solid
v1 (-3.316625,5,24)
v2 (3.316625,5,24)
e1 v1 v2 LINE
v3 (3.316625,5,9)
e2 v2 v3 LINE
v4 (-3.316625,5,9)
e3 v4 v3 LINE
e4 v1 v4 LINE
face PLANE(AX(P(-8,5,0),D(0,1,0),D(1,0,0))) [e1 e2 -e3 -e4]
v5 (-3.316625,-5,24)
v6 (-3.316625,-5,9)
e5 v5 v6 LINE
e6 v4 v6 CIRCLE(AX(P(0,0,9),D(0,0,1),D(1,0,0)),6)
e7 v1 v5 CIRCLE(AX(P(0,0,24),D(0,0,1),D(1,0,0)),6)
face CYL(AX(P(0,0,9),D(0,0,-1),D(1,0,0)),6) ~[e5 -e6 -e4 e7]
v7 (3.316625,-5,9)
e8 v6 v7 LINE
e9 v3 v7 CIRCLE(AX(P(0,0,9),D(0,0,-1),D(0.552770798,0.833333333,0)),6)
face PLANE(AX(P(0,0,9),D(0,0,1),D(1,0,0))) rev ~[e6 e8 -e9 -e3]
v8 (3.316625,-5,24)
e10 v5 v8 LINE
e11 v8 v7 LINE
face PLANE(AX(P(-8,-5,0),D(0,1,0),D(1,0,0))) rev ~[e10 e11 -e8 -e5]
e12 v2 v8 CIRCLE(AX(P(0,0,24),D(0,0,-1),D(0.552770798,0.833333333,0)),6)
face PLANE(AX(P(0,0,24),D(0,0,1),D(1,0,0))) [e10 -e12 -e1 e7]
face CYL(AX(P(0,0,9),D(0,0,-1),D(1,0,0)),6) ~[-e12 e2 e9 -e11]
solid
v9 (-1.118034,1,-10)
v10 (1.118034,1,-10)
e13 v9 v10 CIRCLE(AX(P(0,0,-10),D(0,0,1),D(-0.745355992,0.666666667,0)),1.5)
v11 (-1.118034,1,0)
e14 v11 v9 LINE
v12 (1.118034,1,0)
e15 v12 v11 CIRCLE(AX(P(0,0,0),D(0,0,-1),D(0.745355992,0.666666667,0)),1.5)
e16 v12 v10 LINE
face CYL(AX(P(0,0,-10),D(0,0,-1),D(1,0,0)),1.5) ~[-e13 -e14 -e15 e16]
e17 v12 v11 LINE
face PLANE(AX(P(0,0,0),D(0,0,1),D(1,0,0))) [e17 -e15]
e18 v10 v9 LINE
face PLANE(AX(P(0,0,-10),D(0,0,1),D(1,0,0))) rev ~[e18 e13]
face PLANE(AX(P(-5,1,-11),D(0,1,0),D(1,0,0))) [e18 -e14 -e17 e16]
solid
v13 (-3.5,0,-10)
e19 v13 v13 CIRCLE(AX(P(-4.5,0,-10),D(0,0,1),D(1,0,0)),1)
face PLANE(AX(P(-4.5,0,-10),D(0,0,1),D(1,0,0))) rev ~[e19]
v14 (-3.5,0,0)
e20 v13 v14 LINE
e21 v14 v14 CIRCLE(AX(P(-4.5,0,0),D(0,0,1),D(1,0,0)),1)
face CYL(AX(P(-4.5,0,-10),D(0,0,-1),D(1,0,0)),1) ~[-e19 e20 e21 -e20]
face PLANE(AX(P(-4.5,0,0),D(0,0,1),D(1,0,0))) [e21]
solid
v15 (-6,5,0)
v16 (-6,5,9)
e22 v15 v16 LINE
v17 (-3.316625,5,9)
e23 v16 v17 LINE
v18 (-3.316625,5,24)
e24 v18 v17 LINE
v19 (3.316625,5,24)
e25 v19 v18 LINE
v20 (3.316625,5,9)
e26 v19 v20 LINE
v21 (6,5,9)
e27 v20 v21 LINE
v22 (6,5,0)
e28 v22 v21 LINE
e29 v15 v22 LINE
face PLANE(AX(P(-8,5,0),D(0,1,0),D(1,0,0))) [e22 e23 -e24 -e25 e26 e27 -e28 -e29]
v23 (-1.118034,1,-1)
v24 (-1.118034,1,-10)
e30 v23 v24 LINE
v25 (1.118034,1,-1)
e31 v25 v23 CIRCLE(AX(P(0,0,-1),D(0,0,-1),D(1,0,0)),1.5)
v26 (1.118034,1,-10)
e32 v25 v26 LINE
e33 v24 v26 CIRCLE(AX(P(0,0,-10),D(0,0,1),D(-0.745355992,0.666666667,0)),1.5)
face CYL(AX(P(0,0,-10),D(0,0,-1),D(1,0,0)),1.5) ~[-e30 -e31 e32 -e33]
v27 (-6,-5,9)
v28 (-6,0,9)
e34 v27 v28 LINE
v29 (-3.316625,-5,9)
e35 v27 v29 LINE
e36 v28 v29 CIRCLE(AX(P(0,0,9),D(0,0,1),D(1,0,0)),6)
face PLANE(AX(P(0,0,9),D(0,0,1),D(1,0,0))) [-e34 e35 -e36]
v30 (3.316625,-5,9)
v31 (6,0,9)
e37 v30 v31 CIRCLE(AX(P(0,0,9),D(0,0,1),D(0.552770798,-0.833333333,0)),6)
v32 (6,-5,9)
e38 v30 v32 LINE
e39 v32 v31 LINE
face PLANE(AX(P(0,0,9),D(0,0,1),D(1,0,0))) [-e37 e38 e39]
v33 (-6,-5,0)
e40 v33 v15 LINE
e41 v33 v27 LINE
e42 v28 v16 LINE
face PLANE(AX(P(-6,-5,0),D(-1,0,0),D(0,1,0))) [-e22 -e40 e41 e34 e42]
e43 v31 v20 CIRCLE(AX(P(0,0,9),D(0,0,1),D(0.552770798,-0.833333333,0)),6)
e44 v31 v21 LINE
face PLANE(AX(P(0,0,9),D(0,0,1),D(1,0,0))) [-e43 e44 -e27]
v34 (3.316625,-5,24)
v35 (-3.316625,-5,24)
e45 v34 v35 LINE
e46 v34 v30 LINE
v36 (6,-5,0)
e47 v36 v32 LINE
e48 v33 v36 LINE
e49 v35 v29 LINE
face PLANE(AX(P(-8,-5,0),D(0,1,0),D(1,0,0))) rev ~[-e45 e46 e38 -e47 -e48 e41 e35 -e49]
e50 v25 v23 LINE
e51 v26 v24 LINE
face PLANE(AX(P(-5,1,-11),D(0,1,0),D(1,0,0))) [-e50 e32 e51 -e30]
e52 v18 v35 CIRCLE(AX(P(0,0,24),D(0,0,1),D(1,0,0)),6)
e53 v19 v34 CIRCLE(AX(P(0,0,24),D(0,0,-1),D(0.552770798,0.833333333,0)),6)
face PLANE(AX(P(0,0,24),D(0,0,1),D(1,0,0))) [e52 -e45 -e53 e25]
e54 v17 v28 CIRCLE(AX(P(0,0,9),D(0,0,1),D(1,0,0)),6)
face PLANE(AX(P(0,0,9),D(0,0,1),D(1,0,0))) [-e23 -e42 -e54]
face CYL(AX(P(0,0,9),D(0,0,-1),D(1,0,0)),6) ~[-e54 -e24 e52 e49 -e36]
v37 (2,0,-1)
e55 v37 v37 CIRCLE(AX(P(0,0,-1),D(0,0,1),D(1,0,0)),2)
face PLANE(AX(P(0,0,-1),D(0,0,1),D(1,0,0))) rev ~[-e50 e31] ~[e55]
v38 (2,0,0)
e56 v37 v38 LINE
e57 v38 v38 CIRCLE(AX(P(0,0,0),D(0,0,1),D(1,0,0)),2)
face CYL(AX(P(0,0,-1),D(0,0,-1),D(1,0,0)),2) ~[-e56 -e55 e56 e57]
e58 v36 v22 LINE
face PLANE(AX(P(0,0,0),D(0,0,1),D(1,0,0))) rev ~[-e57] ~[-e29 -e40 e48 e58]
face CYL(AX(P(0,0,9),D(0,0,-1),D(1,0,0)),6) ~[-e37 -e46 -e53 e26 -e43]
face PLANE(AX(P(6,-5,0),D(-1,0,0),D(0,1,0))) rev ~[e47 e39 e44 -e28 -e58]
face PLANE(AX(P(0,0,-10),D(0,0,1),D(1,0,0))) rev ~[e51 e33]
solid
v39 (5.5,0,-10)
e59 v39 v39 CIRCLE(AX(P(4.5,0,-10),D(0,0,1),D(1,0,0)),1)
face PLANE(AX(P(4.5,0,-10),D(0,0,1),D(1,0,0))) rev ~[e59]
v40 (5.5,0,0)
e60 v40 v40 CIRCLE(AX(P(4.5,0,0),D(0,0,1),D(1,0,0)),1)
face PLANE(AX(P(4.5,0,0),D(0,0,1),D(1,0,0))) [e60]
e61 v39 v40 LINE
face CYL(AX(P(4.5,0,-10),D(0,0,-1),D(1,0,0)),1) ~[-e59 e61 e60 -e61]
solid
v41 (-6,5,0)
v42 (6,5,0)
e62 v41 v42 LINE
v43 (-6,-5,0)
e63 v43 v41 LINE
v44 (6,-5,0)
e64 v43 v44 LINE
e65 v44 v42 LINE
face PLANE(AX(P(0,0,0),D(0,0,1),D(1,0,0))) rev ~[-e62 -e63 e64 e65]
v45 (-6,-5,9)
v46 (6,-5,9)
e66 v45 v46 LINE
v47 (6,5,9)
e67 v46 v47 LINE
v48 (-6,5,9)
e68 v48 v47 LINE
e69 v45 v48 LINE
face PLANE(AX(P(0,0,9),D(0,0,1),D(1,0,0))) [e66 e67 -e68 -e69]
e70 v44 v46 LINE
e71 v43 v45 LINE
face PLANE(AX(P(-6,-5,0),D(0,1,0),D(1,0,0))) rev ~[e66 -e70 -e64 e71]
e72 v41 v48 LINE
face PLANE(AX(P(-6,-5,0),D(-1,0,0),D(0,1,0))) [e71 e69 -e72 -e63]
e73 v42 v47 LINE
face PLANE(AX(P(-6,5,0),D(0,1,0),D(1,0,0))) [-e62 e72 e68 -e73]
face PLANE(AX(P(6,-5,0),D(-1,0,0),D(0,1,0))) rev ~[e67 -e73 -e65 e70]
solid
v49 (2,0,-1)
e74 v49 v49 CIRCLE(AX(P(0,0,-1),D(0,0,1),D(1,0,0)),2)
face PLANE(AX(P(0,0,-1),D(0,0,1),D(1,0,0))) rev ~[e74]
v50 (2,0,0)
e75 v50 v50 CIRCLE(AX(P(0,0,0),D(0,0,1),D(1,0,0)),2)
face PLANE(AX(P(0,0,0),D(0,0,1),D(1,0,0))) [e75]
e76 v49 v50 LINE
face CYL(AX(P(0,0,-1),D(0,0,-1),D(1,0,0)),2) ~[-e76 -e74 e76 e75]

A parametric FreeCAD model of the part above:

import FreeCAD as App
import Part
import Sketcher

V = App.Vector

doc = App.newDocument("Part")
params = doc.addObject("Spreadsheet::Sheet", "Params")
for row, (alias, value) in enumerate([
    ("sketch1_diameter", "2 mm"),
    ("pad1_length", "10 mm"),
    ("sketch2_diameter", "2 mm"),
    ("pad2_length", "10 mm"),
    ("sketch3_width", "12 mm"),
    ("sketch3_height", "10 mm"),
    ("pad3_length", "9 mm"),
    ("sketch4_diameter", "4 mm"),
    ("pad4_length", "1 mm"),
    ("sketch5_width", "10 mm"),
    ("pad5_length", "12 mm"),
    ("sketch6_diameter", "3 mm"),
    ("pad6_length", "10 mm"),
    ("sketch7_diameter", "12 mm"),
    ("pad7_length", "15 mm"),
    ("sketch8_width", "16 mm"),
    ("sketch8_height", "10 mm"),
    ("pad8_length", "27 mm"),
    ("sketch9_diameter", "4 mm"),
    ("pad9_length", "1 mm"),
    ("sketch10_width", "16 mm"),
    ("sketch10_height", "10 mm"),
    ("pad10_length", "27 mm"),
    ("sketch11_diameter", "12 mm"),
    ("pad11_length", "15 mm"),
    ("sketch12_width", "10 mm"),
    ("pad12_length", "12 mm"),
    ("sketch13_diameter", "3 mm"),
    ("pad13_length", "10 mm"),
    ("sketch14_width", "12 mm"),
    ("sketch14_height", "10 mm"),
    ("pad14_length", "9 mm"),
], start=1):
    params.set(f"A{row}", alias)
    params.set(f"B{row}", "=" + value)
    params.setAlias(f"B{row}", alias)

body = doc.addObject("PartDesign::Body", "Body")

# Sketch on XY plane
sketch1 = body.newObject("Sketcher::SketchObject", "Sketch")
sketch1.AttachmentSupport = (doc.getObject("XY_Plane"), [""])
sketch1.MapMode = "FlatFace"
sketch1.AttachmentOffset = App.Placement(V(0, 0, -10), App.Rotation())
sketch1.addGeometry(Part.Circle(V(4.5, 0, 0), V(0, 0, 1), 1), False)
sketch1.addConstraint([
    Sketcher.Constraint("PointOnObject", 0, 3, -1),
    Sketcher.Constraint("Diameter", 0, 2.0),
    Sketcher.Constraint("DistanceX", -1, 1, 0, 3, 4.5),
])
sketch1.setExpression("Constraints[1]", "Params.sketch1_diameter")
pad1 = body.newObject("PartDesign::Pad", "Pad")
pad1.Profile = sketch1
pad1.setExpression("Length", "Params.pad1_length")
body2 = doc.addObject("PartDesign::Body", "Body001")

# Sketch on XY plane
sketch2 = body2.newObject("Sketcher::SketchObject", "Sketch001")
sketch2.AttachmentSupport = (doc.getObject("XY_Plane001"), [""])
sketch2.MapMode = "FlatFace"
sketch2.AttachmentOffset = App.Placement(V(0, 0, -10), App.Rotation())
sketch2.addGeometry(Part.Circle(V(-4.5, 0, 0), V(0, 0, 1), 1), False)
sketch2.addConstraint([
    Sketcher.Constraint("PointOnObject", 0, 3, -1),
    Sketcher.Constraint("Diameter", 0, 2.0),
    Sketcher.Constraint("DistanceX", 0, 3, -1, 1, 4.5),
])
sketch2.setExpression("Constraints[1]", "Params.sketch2_diameter")
pad2 = body2.newObject("PartDesign::Pad", "Pad001")
pad2.Profile = sketch2
pad2.setExpression("Length", "Params.pad2_length")
body3 = doc.addObject("PartDesign::Body", "Body002")

# Sketch on XY plane
sketch3 = body3.newObject("Sketcher::SketchObject", "Sketch002")
sketch3.AttachmentSupport = (doc.getObject("XY_Plane002"), [""])
sketch3.MapMode = "FlatFace"
sketch3.addGeometry([
    Part.LineSegment(V(-6, 5, 0), V(-6, -5, 0)),
    Part.LineSegment(V(-6, -5, 0), V(6, -5, 0)),
    Part.LineSegment(V(6, -5, 0), V(6, 5, 0)),
    Part.LineSegment(V(6, 5, 0), V(-6, 5, 0)),
], False)
sketch3.addConstraint([
    Sketcher.Constraint("Coincident", 0, 2, 1, 1),
    Sketcher.Constraint("Coincident", 1, 2, 2, 1),
    Sketcher.Constraint("Coincident", 2, 2, 3, 1),
    Sketcher.Constraint("Coincident", 3, 2, 0, 1),
    Sketcher.Constraint("Vertical", 0),
    Sketcher.Constraint("Horizontal", 1),
    Sketcher.Constraint("Vertical", 2),
    Sketcher.Constraint("Horizontal", 3),
    Sketcher.Constraint("Symmetric", 0, 2, 2, 2, -1, 1),
    Sketcher.Constraint("DistanceX", 1, 1, 1, 2, 12.0),
    Sketcher.Constraint("DistanceY", 0, 2, 0, 1, 10.0),
])
sketch3.setExpression("Constraints[9]", "Params.sketch3_width")
sketch3.setExpression("Constraints[10]", "Params.sketch3_height")
pad3 = body3.newObject("PartDesign::Pad", "Pad002")
pad3.Profile = sketch3
pad3.setExpression("Length", "Params.pad3_length")
body4 = doc.addObject("PartDesign::Body", "Body003")

# Sketch on XY plane
sketch4 = body4.newObject("Sketcher::SketchObject", "Sketch003")
sketch4.AttachmentSupport = (doc.getObject("XY_Plane003"), [""])
sketch4.MapMode = "FlatFace"
sketch4.AttachmentOffset = App.Placement(V(0, 0, -1), App.Rotation())
sketch4.addGeometry(Part.Circle(V(0, 0, 0), V(0, 0, 1), 2), False)
sketch4.addConstraint([
    Sketcher.Constraint("Coincident", 0, 3, -1, 1),
    Sketcher.Constraint("Diameter", 0, 4.0),
])
sketch4.setExpression("Constraints[1]", "Params.sketch4_diameter")
pad4 = body4.newObject("PartDesign::Pad", "Pad003")
pad4.Profile = sketch4
pad4.setExpression("Length", "Params.pad4_length")
body5 = doc.addObject("PartDesign::Body", "Body004")

# Sketch on XY plane
sketch5 = body5.newObject("Sketcher::SketchObject", "Sketch004")
sketch5.AttachmentSupport = (doc.getObject("XY_Plane004"), [""])
sketch5.MapMode = "FlatFace"
sketch5.AttachmentOffset = App.Placement(V(0, 0, -11), App.Rotation())
sketch5.addGeometry([
    Part.LineSegment(V(-5, 11, 0), V(-5, 1, 0)),
    Part.LineSegment(V(-5, 1, 0), V(5, 1, 0)),
    Part.LineSegment(V(5, 1, 0), V(5, 11, 0)),
    Part.LineSegment(V(5, 11, 0), V(-5, 11, 0)),
], False)
sketch5.addConstraint([
    Sketcher.Constraint("Coincident", 0, 2, 1, 1),
    Sketcher.Constraint("Coincident", 1, 2, 2, 1),
    Sketcher.Constraint("Coincident", 2, 2, 3, 1),
    Sketcher.Constraint("Coincident", 3, 2, 0, 1),
    Sketcher.Constraint("Vertical", 0),
    Sketcher.Constraint("Horizontal", 1),
    Sketcher.Constraint("Vertical", 2),
    Sketcher.Constraint("Horizontal", 3),
    Sketcher.Constraint("Equal", 3, 0),
    Sketcher.Constraint("DistanceX", 1, 1, 1, 2, 10.0),
    Sketcher.Constraint("DistanceX", 0, 2, -1, 1, 5.0),
    Sketcher.Constraint("DistanceY", -1, 1, 0, 2, 1.0),
])
sketch5.setExpression("Constraints[9]", "Params.sketch5_width")
pad5 = body5.newObject("PartDesign::Pad", "Pad004")
pad5.Profile = sketch5
pad5.setExpression("Length", "Params.pad5_length")
body6 = doc.addObject("PartDesign::Body", "Body005")

# Sketch on XY plane
sketch6 = body6.newObject("Sketcher::SketchObject", "Sketch005")
sketch6.AttachmentSupport = (doc.getObject("XY_Plane005"), [""])
sketch6.MapMode = "FlatFace"
sketch6.AttachmentOffset = App.Placement(V(0, 0, -10), App.Rotation())
sketch6.addGeometry(Part.Circle(V(0, 0, 0), V(0, 0, 1), 1.5), False)
sketch6.addConstraint([
    Sketcher.Constraint("Coincident", 0, 3, -1, 1),
    Sketcher.Constraint("Diameter", 0, 3.0),
])
sketch6.setExpression("Constraints[1]", "Params.sketch6_diameter")
pad6 = body6.newObject("PartDesign::Pad", "Pad005")
pad6.Profile = sketch6
pad6.setExpression("Length", "Params.pad6_length")
doc.recompute()

boolean = body6.newObject("PartDesign::Boolean", "Boolean")
boolean.Type = "Cut"
boolean.addObjects([body5])
body7 = doc.addObject("PartDesign::Body", "Body006")

# Sketch on XY plane
sketch7 = body7.newObject("Sketcher::SketchObject", "Sketch006")
sketch7.AttachmentSupport = (doc.getObject("XY_Plane006"), [""])
sketch7.MapMode = "FlatFace"
sketch7.AttachmentOffset = App.Placement(V(0, 0, 9), App.Rotation())
sketch7.addGeometry(Part.Circle(V(0, 0, 0), V(0, 0, 1), 6), False)
sketch7.addConstraint([
    Sketcher.Constraint("Coincident", 0, 3, -1, 1),
    Sketcher.Constraint("Diameter", 0, 12.0),
])
sketch7.setExpression("Constraints[1]", "Params.sketch7_diameter")
pad7 = body7.newObject("PartDesign::Pad", "Pad006")
pad7.Profile = sketch7
pad7.setExpression("Length", "Params.pad7_length")
body8 = doc.addObject("PartDesign::Body", "Body007")

# Sketch on XY plane
sketch8 = body8.newObject("Sketcher::SketchObject", "Sketch007")
sketch8.AttachmentSupport = (doc.getObject("XY_Plane007"), [""])
sketch8.MapMode = "FlatFace"
sketch8.addGeometry([
    Part.LineSegment(V(-8, 5, 0), V(-8, -5, 0)),
    Part.LineSegment(V(-8, -5, 0), V(8, -5, 0)),
    Part.LineSegment(V(8, -5, 0), V(8, 5, 0)),
    Part.LineSegment(V(8, 5, 0), V(-8, 5, 0)),
], False)
sketch8.addConstraint([
    Sketcher.Constraint("Coincident", 0, 2, 1, 1),
    Sketcher.Constraint("Coincident", 1, 2, 2, 1),
    Sketcher.Constraint("Coincident", 2, 2, 3, 1),
    Sketcher.Constraint("Coincident", 3, 2, 0, 1),
    Sketcher.Constraint("Vertical", 0),
    Sketcher.Constraint("Horizontal", 1),
    Sketcher.Constraint("Vertical", 2),
    Sketcher.Constraint("Horizontal", 3),
    Sketcher.Constraint("Symmetric", 0, 2, 2, 2, -1, 1),
    Sketcher.Constraint("DistanceX", 1, 1, 1, 2, 16.0),
    Sketcher.Constraint("DistanceY", 0, 2, 0, 1, 10.0),
])
sketch8.setExpression("Constraints[9]", "Params.sketch8_width")
sketch8.setExpression("Constraints[10]", "Params.sketch8_height")
pad8 = body8.newObject("PartDesign::Pad", "Pad007")
pad8.Profile = sketch8
pad8.setExpression("Length", "Params.pad8_length")
doc.recompute()

boolean2 = body8.newObject("PartDesign::Boolean", "Boolean001")
boolean2.Type = "Common"
boolean2.addObjects([body7])
body9 = doc.addObject("PartDesign::Body", "Body008")

# Sketch on XY plane
sketch9 = body9.newObject("Sketcher::SketchObject", "Sketch008")
sketch9.AttachmentSupport = (doc.getObject("XY_Plane008"), [""])
sketch9.MapMode = "FlatFace"
sketch9.AttachmentOffset = App.Placement(V(0, 0, -1), App.Rotation())
sketch9.addGeometry(Part.Circle(V(0, 0, 0), V(0, 0, 1), 2), False)
sketch9.addConstraint([
    Sketcher.Constraint("Coincident", 0, 3, -1, 1),
    Sketcher.Constraint("Diameter", 0, 4.0),
])
sketch9.setExpression("Constraints[1]", "Params.sketch9_diameter")
pad9 = body9.newObject("PartDesign::Pad", "Pad008")
pad9.Profile = sketch9
pad9.setExpression("Length", "Params.pad9_length")
body10 = doc.addObject("PartDesign::Body", "Body009")

# Sketch on XY plane
sketch10 = body10.newObject("Sketcher::SketchObject", "Sketch009")
sketch10.AttachmentSupport = (doc.getObject("XY_Plane009"), [""])
sketch10.MapMode = "FlatFace"
sketch10.addGeometry([
    Part.LineSegment(V(-8, 5, 0), V(-8, -5, 0)),
    Part.LineSegment(V(-8, -5, 0), V(8, -5, 0)),
    Part.LineSegment(V(8, -5, 0), V(8, 5, 0)),
    Part.LineSegment(V(8, 5, 0), V(-8, 5, 0)),
], False)
sketch10.addConstraint([
    Sketcher.Constraint("Coincident", 0, 2, 1, 1),
    Sketcher.Constraint("Coincident", 1, 2, 2, 1),
    Sketcher.Constraint("Coincident", 2, 2, 3, 1),
    Sketcher.Constraint("Coincident", 3, 2, 0, 1),
    Sketcher.Constraint("Vertical", 0),
    Sketcher.Constraint("Horizontal", 1),
    Sketcher.Constraint("Vertical", 2),
    Sketcher.Constraint("Horizontal", 3),
    Sketcher.Constraint("Symmetric", 0, 2, 2, 2, -1, 1),
    Sketcher.Constraint("DistanceX", 1, 1, 1, 2, 16.0),
    Sketcher.Constraint("DistanceY", 0, 2, 0, 1, 10.0),
])
sketch10.setExpression("Constraints[9]", "Params.sketch10_width")
sketch10.setExpression("Constraints[10]", "Params.sketch10_height")
pad10 = body10.newObject("PartDesign::Pad", "Pad009")
pad10.Profile = sketch10
pad10.setExpression("Length", "Params.pad10_length")
body11 = doc.addObject("PartDesign::Body", "Body010")

# Sketch on XY plane
sketch11 = body11.newObject("Sketcher::SketchObject", "Sketch010")
sketch11.AttachmentSupport = (doc.getObject("XY_Plane010"), [""])
sketch11.MapMode = "FlatFace"
sketch11.AttachmentOffset = App.Placement(V(0, 0, 9), App.Rotation())
sketch11.addGeometry(Part.Circle(V(0, 0, 0), V(0, 0, 1), 6), False)
sketch11.addConstraint([
    Sketcher.Constraint("Coincident", 0, 3, -1, 1),
    Sketcher.Constraint("Diameter", 0, 12.0),
])
sketch11.setExpression("Constraints[1]", "Params.sketch11_diameter")
pad11 = body11.newObject("PartDesign::Pad", "Pad010")
pad11.Profile = sketch11
pad11.setExpression("Length", "Params.pad11_length")
doc.recompute()

boolean3 = body11.newObject("PartDesign::Boolean", "Boolean002")
boolean3.Type = "Common"
boolean3.addObjects([body10])
body12 = doc.addObject("PartDesign::Body", "Body011")

# Sketch on XY plane
sketch12 = body12.newObject("Sketcher::SketchObject", "Sketch011")
sketch12.AttachmentSupport = (doc.getObject("XY_Plane011"), [""])
sketch12.MapMode = "FlatFace"
sketch12.AttachmentOffset = App.Placement(V(0, 0, -11), App.Rotation())
sketch12.addGeometry([
    Part.LineSegment(V(-5, 11, 0), V(-5, 1, 0)),
    Part.LineSegment(V(-5, 1, 0), V(5, 1, 0)),
    Part.LineSegment(V(5, 1, 0), V(5, 11, 0)),
    Part.LineSegment(V(5, 11, 0), V(-5, 11, 0)),
], False)
sketch12.addConstraint([
    Sketcher.Constraint("Coincident", 0, 2, 1, 1),
    Sketcher.Constraint("Coincident", 1, 2, 2, 1),
    Sketcher.Constraint("Coincident", 2, 2, 3, 1),
    Sketcher.Constraint("Coincident", 3, 2, 0, 1),
    Sketcher.Constraint("Vertical", 0),
    Sketcher.Constraint("Horizontal", 1),
    Sketcher.Constraint("Vertical", 2),
    Sketcher.Constraint("Horizontal", 3),
    Sketcher.Constraint("Equal", 3, 0),
    Sketcher.Constraint("DistanceX", 1, 1, 1, 2, 10.0),
    Sketcher.Constraint("DistanceX", 0, 2, -1, 1, 5.0),
    Sketcher.Constraint("DistanceY", -1, 1, 0, 2, 1.0),
])
sketch12.setExpression("Constraints[9]", "Params.sketch12_width")
pad12 = body12.newObject("PartDesign::Pad", "Pad011")
pad12.Profile = sketch12
pad12.setExpression("Length", "Params.pad12_length")
body13 = doc.addObject("PartDesign::Body", "Body012")

# Sketch on XY plane
sketch13 = body13.newObject("Sketcher::SketchObject", "Sketch012")
sketch13.AttachmentSupport = (doc.getObject("XY_Plane012"), [""])
sketch13.MapMode = "FlatFace"
sketch13.AttachmentOffset = App.Placement(V(0, 0, -10), App.Rotation())
sketch13.addGeometry(Part.Circle(V(0, 0, 0), V(0, 0, 1), 1.5), False)
sketch13.addConstraint([
    Sketcher.Constraint("Coincident", 0, 3, -1, 1),
    Sketcher.Constraint("Diameter", 0, 3.0),
])
sketch13.setExpression("Constraints[1]", "Params.sketch13_diameter")
pad13 = body13.newObject("PartDesign::Pad", "Pad012")
pad13.Profile = sketch13
pad13.setExpression("Length", "Params.pad13_length")
doc.recompute()

boolean4 = body13.newObject("PartDesign::Boolean", "Boolean003")
boolean4.Type = "Cut"
boolean4.addObjects([body12])
body14 = doc.addObject("PartDesign::Body", "Body013")

# Sketch on XY plane
sketch14 = body14.newObject("Sketcher::SketchObject", "Sketch013")
sketch14.AttachmentSupport = (doc.getObject("XY_Plane013"), [""])
sketch14.MapMode = "FlatFace"
sketch14.addGeometry([
    Part.LineSegment(V(-6, 5, 0), V(-6, -5, 0)),
    Part.LineSegment(V(-6, -5, 0), V(6, -5, 0)),
    Part.LineSegment(V(6, -5, 0), V(6, 5, 0)),
    Part.LineSegment(V(6, 5, 0), V(-6, 5, 0)),
], False)
sketch14.addConstraint([
    Sketcher.Constraint("Coincident", 0, 2, 1, 1),
    Sketcher.Constraint("Coincident", 1, 2, 2, 1),
    Sketcher.Constraint("Coincident", 2, 2, 3, 1),
    Sketcher.Constraint("Coincident", 3, 2, 0, 1),
    Sketcher.Constraint("Vertical", 0),
    Sketcher.Constraint("Horizontal", 1),
    Sketcher.Constraint("Vertical", 2),
    Sketcher.Constraint("Horizontal", 3),
    Sketcher.Constraint("Symmetric", 0, 2, 2, 2, -1, 1),
    Sketcher.Constraint("DistanceX", 1, 1, 1, 2, 12.0),
    Sketcher.Constraint("DistanceY", 0, 2, 0, 1, 10.0),
])
sketch14.setExpression("Constraints[9]", "Params.sketch14_width")
sketch14.setExpression("Constraints[10]", "Params.sketch14_height")
pad14 = body14.newObject("PartDesign::Pad", "Pad013")
pad14.Profile = sketch14
pad14.setExpression("Length", "Params.pad14_length")
doc.recompute()

boolean5 = body14.newObject("PartDesign::Boolean", "Boolean004")
boolean5.Type = "Fuse"
boolean5.addObjects([body9])
doc.recompute()

boolean6 = body14.newObject("PartDesign::Boolean", "Boolean005")
boolean6.Type = "Fuse"
boolean6.addObjects([body11])
doc.recompute()

boolean7 = body14.newObject("PartDesign::Boolean", "Boolean006")
boolean7.Type = "Fuse"
boolean7.addObjects([body13])

doc.recompute()
